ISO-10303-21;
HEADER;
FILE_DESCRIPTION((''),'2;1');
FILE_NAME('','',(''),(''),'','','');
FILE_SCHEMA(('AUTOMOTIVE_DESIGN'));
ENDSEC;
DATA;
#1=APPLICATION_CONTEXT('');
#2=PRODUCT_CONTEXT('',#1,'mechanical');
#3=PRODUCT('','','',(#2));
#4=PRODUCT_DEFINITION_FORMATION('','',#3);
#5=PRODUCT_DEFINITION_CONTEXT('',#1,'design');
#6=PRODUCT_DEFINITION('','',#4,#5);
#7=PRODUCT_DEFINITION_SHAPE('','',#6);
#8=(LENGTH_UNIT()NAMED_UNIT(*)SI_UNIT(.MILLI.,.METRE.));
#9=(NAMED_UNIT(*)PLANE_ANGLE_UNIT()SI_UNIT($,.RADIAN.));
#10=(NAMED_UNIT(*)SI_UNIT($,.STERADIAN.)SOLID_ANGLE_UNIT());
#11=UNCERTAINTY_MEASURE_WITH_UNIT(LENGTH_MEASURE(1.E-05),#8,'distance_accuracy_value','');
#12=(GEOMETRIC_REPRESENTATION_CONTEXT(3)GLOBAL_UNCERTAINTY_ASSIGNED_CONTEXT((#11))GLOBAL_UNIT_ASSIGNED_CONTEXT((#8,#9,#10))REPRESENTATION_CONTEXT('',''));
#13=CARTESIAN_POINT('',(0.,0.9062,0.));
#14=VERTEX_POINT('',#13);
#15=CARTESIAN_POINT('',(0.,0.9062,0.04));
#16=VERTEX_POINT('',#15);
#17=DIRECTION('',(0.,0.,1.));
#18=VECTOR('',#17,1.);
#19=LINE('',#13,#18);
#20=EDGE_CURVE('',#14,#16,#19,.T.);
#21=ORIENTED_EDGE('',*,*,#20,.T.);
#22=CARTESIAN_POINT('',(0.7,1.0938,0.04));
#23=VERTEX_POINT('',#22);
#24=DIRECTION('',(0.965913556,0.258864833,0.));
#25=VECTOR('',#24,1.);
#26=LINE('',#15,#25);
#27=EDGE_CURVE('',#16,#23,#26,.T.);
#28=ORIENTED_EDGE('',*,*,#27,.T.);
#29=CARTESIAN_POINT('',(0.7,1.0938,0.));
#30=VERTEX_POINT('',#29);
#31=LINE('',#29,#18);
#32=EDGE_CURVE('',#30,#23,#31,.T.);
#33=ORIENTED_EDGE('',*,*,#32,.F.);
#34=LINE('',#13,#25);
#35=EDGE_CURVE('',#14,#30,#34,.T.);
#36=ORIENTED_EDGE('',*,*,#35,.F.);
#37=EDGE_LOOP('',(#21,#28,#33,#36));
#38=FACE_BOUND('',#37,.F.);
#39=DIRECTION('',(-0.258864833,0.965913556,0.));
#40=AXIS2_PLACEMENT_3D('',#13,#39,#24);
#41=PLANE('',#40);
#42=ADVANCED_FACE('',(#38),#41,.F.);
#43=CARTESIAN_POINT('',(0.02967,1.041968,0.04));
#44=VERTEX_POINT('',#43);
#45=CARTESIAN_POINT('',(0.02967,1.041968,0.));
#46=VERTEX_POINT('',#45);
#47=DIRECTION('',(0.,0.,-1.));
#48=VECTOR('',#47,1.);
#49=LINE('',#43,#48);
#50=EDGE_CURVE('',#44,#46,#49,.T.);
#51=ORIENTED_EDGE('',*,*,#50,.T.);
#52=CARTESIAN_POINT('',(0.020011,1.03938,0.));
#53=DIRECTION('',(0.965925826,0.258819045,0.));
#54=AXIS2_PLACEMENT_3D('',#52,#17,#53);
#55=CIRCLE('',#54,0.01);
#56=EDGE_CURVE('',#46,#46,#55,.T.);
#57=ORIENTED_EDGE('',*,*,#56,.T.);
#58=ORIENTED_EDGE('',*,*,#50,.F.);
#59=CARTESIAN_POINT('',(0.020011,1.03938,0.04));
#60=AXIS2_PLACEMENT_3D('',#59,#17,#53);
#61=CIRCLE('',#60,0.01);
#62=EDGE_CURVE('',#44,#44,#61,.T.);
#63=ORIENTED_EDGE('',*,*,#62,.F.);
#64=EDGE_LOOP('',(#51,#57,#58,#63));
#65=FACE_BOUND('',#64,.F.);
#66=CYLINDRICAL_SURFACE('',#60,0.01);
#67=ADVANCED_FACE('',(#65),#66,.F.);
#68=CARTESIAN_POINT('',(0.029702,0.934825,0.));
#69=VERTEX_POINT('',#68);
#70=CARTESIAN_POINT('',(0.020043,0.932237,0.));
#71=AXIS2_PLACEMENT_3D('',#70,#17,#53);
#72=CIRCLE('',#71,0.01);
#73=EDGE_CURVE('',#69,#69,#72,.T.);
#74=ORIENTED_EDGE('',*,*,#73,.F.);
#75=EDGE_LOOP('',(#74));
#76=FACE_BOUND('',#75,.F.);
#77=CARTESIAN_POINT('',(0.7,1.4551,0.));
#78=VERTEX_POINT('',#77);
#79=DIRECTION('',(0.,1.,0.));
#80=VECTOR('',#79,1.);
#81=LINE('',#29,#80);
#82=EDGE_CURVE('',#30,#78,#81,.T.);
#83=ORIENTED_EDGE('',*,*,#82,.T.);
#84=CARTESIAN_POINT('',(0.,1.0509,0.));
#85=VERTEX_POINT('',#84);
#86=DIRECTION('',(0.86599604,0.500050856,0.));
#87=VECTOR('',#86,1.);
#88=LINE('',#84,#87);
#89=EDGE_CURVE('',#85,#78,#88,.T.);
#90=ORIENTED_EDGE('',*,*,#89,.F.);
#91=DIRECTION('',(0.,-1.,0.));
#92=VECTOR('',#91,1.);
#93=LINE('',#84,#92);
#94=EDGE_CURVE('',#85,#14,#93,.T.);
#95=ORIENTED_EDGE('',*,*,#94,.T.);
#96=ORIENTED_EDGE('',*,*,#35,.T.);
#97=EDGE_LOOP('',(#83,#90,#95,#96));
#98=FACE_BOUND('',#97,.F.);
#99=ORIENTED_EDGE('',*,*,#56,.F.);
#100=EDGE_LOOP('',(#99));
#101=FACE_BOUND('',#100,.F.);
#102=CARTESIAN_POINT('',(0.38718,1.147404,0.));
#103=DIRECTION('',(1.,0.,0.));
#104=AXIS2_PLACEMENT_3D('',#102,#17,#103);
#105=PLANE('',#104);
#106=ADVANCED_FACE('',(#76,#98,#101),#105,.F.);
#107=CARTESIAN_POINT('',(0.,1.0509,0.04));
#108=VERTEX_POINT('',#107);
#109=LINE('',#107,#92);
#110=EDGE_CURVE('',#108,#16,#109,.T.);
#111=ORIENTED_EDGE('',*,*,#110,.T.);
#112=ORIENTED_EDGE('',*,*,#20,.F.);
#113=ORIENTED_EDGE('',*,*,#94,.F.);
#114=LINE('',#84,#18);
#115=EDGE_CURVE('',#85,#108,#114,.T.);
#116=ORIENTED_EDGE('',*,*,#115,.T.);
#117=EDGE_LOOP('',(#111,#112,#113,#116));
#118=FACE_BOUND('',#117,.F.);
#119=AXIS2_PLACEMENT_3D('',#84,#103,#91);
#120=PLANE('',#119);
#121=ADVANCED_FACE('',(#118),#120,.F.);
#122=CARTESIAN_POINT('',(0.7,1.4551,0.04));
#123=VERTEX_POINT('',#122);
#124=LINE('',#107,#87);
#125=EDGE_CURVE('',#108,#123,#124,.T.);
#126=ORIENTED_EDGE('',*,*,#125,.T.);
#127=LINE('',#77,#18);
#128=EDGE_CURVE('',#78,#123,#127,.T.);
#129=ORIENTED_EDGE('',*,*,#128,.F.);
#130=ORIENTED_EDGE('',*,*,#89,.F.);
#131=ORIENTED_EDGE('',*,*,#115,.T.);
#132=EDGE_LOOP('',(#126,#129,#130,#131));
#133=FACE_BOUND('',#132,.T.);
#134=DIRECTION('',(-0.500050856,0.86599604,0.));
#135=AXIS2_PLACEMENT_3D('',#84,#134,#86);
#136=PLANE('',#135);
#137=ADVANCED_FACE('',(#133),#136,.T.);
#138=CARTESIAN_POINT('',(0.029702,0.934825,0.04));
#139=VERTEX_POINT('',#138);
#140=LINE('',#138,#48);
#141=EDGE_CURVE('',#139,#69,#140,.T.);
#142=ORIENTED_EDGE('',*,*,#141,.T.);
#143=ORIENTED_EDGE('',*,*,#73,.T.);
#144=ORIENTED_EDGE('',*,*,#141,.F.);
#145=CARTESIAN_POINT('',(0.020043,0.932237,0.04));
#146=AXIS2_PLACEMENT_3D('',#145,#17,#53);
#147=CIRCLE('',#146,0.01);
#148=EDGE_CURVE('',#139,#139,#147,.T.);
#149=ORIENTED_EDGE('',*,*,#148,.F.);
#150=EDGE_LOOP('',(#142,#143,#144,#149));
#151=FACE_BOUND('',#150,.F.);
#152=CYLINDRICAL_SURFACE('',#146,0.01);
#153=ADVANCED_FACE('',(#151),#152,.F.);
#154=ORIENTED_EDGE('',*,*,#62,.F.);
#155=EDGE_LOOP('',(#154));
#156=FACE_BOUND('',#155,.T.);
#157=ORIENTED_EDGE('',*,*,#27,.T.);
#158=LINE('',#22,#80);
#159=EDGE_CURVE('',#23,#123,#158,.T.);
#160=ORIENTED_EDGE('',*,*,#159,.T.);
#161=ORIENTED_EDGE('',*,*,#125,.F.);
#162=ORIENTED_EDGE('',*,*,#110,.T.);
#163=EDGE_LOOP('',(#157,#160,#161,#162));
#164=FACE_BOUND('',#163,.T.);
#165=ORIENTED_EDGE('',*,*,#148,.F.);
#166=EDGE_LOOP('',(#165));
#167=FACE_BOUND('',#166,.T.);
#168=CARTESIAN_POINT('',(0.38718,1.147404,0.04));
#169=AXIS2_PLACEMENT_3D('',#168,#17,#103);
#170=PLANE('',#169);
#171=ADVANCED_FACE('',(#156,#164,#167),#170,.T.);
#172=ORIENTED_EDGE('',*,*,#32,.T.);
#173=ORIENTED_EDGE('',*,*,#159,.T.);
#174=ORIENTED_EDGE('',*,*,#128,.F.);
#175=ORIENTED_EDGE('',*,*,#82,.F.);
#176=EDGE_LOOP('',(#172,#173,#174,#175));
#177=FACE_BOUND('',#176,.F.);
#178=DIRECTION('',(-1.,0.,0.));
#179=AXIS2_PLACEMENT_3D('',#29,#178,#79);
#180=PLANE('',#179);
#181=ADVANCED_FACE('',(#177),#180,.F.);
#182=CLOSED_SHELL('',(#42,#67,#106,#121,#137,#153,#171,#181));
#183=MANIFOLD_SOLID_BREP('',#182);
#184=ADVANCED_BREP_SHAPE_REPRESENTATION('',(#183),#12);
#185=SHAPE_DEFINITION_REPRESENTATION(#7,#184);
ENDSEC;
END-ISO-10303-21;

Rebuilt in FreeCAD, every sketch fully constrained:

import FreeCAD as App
import Part
import Sketcher

V = App.Vector
Q = App.Units.Quantity


def add_polygon(sketch, points):
    """Adds a closed chain of lines whose ends are joined by coincident constraints."""
    first, n = sketch.GeometryCount, len(points)
    for a, b in zip(points, points[1:] + points[:1]):
        sketch.addGeometry(Part.LineSegment(App.Vector(*a, 0), App.Vector(*b, 0)), False)
    for i in range(n):
        sketch.addConstraint(Sketcher.Constraint("Coincident", first + i, 2, first + (i + 1) % n, 1))

doc = App.newDocument("Part")
body = doc.addObject("PartDesign::Body", "Body")

# Sketch on XY plane
sketch1 = doc.addObject("Sketcher::SketchObject", "Sketch")
body.addObject(sketch1)
sketch1.AttachmentSupport = (doc.XY_Plane, [""])
sketch1.MapMode = "FlatFace"
add_polygon(sketch1, [(0, 1.05), (0, 0.91), (0.7, 1.09), (0.7, 1.46)])  # lines 0-3
sketch1.addConstraint([
    Sketcher.Constraint("Vertical", 0),
    Sketcher.Constraint("Vertical", 2),
    Sketcher.Constraint("PointOnObject", 0, 2, -2),
    Sketcher.Constraint("DistanceX", -1, 1, 1, 2, Q("0.7 mm")),
    Sketcher.Constraint("DistanceY", 0, 2, 0, 1, Q("0.1447 mm")),
    Sketcher.Constraint("DistanceY", 2, 1, 2, 2, Q("0.3613 mm")),
    Sketcher.Constraint("DistanceY", -1, 1, 2, 2, Q("1.455 mm")),
    Sketcher.Constraint("DistanceY", -1, 1, 3, 2, Q("1.051 mm")),
])
pad1 = doc.addObject("PartDesign::Pad", "Pad")
body.addObject(pad1)
pad1.Profile = sketch1
pad1.Length = 0.04

# Sketch on XY plane
sketch2 = doc.addObject("Sketcher::SketchObject", "Sketch001")
body.addObject(sketch2)
sketch2.AttachmentSupport = (doc.XY_Plane, [""])
sketch2.MapMode = "FlatFace"
sketch2.AttachmentOffset = App.Placement(V(0, 0, 0.04), App.Rotation())
sketch2.addGeometry([
    Part.Circle(V(0.02, 1.039, 0), V(0, 0, 1), 0.01),
    Part.Circle(V(0.02, 0.932, 0), V(0, 0, 1), 0.01),
], False)
sketch2.addConstraint([
    Sketcher.Constraint("Equal", 0, 1),
    Sketcher.Constraint("Vertical", 0, 3, 1, 3),
    Sketcher.Constraint("Diameter", 0, Q("0.02 mm")),
    Sketcher.Constraint("DistanceX", -1, 1, 0, 3, Q("0.02 mm")),
    Sketcher.Constraint("DistanceY", -1, 1, 0, 3, Q("1.0394 mm")),
    Sketcher.Constraint("DistanceY", -1, 1, 1, 3, Q("0.9322 mm")),
])
pocket1 = doc.addObject("PartDesign::Pocket", "Pocket")
body.addObject(pocket1)
pocket1.Profile = sketch2
pocket1.Type = "ThroughAll"

doc.recompute()
